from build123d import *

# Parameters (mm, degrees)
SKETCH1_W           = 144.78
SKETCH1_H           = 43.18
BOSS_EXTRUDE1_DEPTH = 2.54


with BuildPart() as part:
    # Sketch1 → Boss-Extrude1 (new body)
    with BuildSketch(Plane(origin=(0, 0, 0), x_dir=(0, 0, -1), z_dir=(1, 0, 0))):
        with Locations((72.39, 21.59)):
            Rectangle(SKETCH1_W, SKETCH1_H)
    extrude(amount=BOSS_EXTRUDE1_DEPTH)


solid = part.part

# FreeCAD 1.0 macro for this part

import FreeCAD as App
import Part
import Sketcher

V = App.Vector
Q = App.Units.Quantity


def add_polygon(sketch, points):
    """Adds a closed chain of lines whose ends are joined by coincident constraints."""
    first, n = sketch.GeometryCount, len(points)
    for a, b in zip(points, points[1:] + points[:1]):
        sketch.addGeometry(Part.LineSegment(App.Vector(*a, 0), App.Vector(*b, 0)), False)
    for i in range(n):
        sketch.addConstraint(Sketcher.Constraint("Coincident", first + i, 2, first + (i + 1) % n, 1))

doc = App.newDocument("Part")
params = doc.addObject("Spreadsheet::Sheet", "Params")
for row, (alias, value) in enumerate([
    ("sketch1_width", "1.7 in"),
    ("sketch1_height", "5.7 in"),
    ("pad1_length", "0.1 in"),
], start=1):
    params.set(f"A{row}", alias)
    params.set(f"B{row}", "=" + value)
    params.setAlias(f"B{row}", alias)

body = doc.addObject("PartDesign::Body", "Body")

# Sketch on YZ plane
sketch1 = doc.addObject("Sketcher::SketchObject", "Sketch")
body.addObject(sketch1)
sketch1.AttachmentSupport = (doc.YZ_Plane, [""])
sketch1.MapMode = "FlatFace"
add_polygon(sketch1, [(43.18, 0), (0, 0), (0, -144.78), (43.18, -144.78)])  # lines 0-3
sketch1.addConstraint(Sketcher.Constraint("Horizontal", 0))
sketch1.addConstraint(Sketcher.Constraint("Vertical", 1))
sketch1.addConstraint(Sketcher.Constraint("Horizontal", 2))
sketch1.addConstraint(Sketcher.Constraint("Vertical", 3))
sketch1.addConstraint(Sketcher.Constraint("Coincident", 0, 2, -1, 1))
sketch1.addConstraint(Sketcher.Constraint("DistanceX", 0, 2, 0, 1, Q("1.7 in")))
sketch1.addConstraint(Sketcher.Constraint("DistanceY", 1, 2, 1, 1, Q("5.7 in")))
sketch1.setExpression("Constraints[9]", "Params.sketch1_width")
sketch1.setExpression("Constraints[10]", "Params.sketch1_height")
pad1 = doc.addObject("PartDesign::Pad", "Pad")
body.addObject(pad1)
pad1.Profile = sketch1
pad1.setExpression("Length", "Params.pad1_length")

doc.recompute()
